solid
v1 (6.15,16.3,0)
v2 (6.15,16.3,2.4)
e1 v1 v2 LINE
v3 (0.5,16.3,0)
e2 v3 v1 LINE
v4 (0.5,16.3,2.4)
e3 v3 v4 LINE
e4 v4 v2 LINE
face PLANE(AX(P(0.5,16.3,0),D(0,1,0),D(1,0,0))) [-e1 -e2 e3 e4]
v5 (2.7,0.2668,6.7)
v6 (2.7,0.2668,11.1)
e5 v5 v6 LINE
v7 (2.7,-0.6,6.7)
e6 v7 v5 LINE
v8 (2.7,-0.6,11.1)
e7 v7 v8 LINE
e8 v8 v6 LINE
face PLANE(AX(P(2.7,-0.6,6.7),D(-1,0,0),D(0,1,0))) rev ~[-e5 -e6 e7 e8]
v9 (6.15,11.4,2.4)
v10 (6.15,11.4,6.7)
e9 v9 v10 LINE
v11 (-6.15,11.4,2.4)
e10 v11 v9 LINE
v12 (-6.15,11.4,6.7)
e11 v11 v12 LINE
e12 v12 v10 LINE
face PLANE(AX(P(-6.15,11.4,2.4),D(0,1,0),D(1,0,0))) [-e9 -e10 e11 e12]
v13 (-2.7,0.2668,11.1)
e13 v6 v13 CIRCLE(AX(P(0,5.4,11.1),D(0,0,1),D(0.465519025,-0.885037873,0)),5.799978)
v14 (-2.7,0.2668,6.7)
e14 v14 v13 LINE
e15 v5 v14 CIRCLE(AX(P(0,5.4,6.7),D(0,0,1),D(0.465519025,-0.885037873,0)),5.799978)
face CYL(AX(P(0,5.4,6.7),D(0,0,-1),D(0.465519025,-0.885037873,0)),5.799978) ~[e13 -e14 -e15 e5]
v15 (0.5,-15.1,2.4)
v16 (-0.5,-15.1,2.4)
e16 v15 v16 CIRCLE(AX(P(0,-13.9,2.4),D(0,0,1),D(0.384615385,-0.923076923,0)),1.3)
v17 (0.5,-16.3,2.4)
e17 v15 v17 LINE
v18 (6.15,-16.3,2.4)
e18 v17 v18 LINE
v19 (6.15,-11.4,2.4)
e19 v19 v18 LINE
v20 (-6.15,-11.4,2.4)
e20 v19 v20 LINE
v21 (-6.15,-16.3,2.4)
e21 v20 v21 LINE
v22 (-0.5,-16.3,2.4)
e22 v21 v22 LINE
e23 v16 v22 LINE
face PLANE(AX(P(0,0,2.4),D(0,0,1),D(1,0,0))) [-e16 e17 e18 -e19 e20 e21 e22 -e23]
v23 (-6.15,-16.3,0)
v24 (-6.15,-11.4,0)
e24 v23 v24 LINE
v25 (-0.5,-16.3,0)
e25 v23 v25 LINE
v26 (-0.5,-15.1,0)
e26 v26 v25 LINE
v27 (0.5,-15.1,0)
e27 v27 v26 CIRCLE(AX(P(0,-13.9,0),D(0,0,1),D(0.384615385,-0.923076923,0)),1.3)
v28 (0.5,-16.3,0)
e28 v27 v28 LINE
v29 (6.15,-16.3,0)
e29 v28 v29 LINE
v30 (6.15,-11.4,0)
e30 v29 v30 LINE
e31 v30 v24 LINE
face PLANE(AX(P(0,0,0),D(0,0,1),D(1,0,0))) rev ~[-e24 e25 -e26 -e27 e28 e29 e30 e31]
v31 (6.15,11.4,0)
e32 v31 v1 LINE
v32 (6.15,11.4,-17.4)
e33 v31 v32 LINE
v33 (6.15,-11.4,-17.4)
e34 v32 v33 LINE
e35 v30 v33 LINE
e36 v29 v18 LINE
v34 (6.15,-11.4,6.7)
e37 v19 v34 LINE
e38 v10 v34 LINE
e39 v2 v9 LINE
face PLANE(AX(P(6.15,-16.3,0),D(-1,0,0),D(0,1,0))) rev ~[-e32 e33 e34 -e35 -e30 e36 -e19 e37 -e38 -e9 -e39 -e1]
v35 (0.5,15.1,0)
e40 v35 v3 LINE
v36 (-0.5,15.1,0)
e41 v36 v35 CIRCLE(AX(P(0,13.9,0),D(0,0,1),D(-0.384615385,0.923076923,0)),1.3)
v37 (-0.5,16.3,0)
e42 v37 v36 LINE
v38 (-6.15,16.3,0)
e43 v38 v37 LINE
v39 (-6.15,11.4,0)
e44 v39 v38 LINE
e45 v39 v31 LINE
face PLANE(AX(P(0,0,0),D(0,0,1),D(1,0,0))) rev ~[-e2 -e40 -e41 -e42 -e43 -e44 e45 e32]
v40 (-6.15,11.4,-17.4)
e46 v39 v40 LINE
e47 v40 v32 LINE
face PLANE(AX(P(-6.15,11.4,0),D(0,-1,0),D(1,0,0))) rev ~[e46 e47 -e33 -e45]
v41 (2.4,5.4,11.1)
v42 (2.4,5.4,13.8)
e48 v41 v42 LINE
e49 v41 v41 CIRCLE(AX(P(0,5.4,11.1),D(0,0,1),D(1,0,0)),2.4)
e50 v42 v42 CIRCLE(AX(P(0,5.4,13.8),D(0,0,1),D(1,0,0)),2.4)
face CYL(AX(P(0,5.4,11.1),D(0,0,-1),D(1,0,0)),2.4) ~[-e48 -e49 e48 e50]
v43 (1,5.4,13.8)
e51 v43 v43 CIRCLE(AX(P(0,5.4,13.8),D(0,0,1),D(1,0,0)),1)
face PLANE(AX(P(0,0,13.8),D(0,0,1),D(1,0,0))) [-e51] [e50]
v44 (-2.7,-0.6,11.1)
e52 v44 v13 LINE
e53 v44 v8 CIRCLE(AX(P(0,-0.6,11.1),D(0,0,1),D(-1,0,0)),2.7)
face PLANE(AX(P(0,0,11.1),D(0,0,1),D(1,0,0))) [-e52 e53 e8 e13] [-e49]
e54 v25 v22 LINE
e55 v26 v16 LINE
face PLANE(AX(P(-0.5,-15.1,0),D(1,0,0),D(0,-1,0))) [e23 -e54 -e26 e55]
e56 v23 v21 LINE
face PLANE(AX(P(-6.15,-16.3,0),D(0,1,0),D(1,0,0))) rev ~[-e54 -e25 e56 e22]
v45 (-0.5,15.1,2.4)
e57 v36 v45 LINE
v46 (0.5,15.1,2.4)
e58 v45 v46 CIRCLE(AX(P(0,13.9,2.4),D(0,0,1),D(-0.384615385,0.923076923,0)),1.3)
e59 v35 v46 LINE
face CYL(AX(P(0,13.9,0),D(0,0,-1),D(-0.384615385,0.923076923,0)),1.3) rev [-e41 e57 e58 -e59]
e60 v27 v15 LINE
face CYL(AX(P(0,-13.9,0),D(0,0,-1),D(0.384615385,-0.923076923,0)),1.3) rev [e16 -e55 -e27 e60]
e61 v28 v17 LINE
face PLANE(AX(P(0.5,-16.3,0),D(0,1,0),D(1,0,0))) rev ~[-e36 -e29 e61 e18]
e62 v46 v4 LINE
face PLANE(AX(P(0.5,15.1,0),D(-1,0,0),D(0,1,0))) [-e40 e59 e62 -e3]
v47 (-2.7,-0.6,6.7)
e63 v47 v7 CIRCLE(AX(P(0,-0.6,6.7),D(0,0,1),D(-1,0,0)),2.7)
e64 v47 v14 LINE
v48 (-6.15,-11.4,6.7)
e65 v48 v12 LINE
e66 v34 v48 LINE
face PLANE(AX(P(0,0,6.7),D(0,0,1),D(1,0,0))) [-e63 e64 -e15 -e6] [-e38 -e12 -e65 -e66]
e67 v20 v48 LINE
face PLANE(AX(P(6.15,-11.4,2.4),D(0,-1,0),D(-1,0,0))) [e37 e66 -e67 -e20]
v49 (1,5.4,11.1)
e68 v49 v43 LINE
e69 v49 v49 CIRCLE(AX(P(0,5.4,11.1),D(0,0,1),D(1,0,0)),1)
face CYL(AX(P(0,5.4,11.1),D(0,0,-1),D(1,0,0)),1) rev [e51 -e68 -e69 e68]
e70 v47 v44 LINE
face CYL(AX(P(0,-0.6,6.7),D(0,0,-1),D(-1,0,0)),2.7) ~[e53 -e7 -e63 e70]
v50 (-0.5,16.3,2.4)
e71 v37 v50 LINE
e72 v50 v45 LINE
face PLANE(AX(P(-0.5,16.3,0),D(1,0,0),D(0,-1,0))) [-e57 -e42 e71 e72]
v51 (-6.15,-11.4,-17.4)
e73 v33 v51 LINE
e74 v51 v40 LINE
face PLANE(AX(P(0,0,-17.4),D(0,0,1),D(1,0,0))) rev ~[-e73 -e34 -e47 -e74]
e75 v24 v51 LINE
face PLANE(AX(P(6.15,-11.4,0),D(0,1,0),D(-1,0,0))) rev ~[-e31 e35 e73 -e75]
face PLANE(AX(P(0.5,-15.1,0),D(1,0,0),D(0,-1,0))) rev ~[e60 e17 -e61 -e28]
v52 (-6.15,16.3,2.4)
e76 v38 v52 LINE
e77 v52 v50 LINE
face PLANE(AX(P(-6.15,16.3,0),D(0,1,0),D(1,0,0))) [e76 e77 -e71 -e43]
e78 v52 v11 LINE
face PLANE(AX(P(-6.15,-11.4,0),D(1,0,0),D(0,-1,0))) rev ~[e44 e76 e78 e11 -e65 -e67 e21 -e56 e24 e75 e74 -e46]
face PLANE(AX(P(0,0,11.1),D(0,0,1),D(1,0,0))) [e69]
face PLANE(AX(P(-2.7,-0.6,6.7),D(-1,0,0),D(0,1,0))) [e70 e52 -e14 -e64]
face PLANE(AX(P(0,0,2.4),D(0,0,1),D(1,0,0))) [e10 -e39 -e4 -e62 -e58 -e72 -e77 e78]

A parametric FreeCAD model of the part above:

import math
import FreeCAD as App
import Part
import Sketcher

V = App.Vector
Q = App.Units.Quantity


def add_polygon(sketch, points):
    """Adds a closed chain of lines whose ends are joined by coincident constraints."""
    first, n = sketch.GeometryCount, len(points)
    for a, b in zip(points, points[1:] + points[:1]):
        sketch.addGeometry(Part.LineSegment(App.Vector(*a, 0), App.Vector(*b, 0)), False)
    for i in range(n):
        sketch.addConstraint(Sketcher.Constraint("Coincident", first + i, 2, first + (i + 1) % n, 1))

doc = App.newDocument("Part")
body = doc.addObject("PartDesign::Body", "Body")

sketch1 = body.newObject("Sketcher::SketchObject", "Sketch")
sketch1.AttachmentSupport = (doc.getObject("XY_Plane"), [""])
sketch1.MapMode = "FlatFace"
add_polygon(sketch1, [(-6, -11), (6, -11), (6, 11), (-6, 11)])
sketch1.addConstraint([
    Sketcher.Constraint("Horizontal", 0),
    Sketcher.Constraint("Vertical", 1),
    Sketcher.Constraint("Horizontal", 2),
    Sketcher.Constraint("Vertical", 3),
    Sketcher.Constraint("Symmetric", 0, 2, 2, 2, -1, 1),
    Sketcher.Constraint("DistanceX", 0, 1, 0, 2, Q("12.3 mm")),
    Sketcher.Constraint("DistanceY", 1, 1, 1, 2, Q("22.8 mm")),
])
pad1 = body.newObject("PartDesign::Pad", "Pad")
pad1.Profile = sketch1
pad1.Length = 17.4
pad1.Reversed = True

sketch2 = body.newObject("Sketcher::SketchObject", "Sketch001")
sketch2.AttachmentSupport = (doc.getObject("XY_Plane"), [""])
sketch2.MapMode = "FlatFace"
sketch2.addGeometry([
    Part.LineSegment(V(6.2, -16.3, 0), V(6.2, 16.3, 0)),
    Part.LineSegment(V(6.2, 16.3, 0), V(0.5, 16.3, 0)),
    Part.LineSegment(V(0.5, 16.3, 0), V(0.5, 15.1, 0)),
    Part.ArcOfCircle(Part.Circle(V(0, 13.9, 0), V(0, 0, 1), 1.3), math.radians(113), math.radians(427)),
    Part.LineSegment(V(-0.5, 15.1, 0), V(-0.5, 16.3, 0)),
    Part.LineSegment(V(-0.5, 16.3, 0), V(-6.2, 16.3, 0)),
    Part.LineSegment(V(-6.2, 16.3, 0), V(-6.2, -16.3, 0)),
    Part.LineSegment(V(-6.2, -16.3, 0), V(-0.5, -16.3, 0)),
    Part.LineSegment(V(-0.5, -16.3, 0), V(-0.5, -15.1, 0)),
    Part.ArcOfCircle(Part.Circle(V(0, -13.9, 0), V(0, 0, 1), 1.3), math.radians(-67), math.radians(247)),
    Part.LineSegment(V(0.5, -15.1, 0), V(0.5, -16.3, 0)),
    Part.LineSegment(V(0.5, -16.3, 0), V(6.2, -16.3, 0)),
], False)
sketch2.addConstraint([
    Sketcher.Constraint("Coincident", 0, 2, 1, 1),
    Sketcher.Constraint("Coincident", 1, 2, 2, 1),
    Sketcher.Constraint("Coincident", 2, 2, 3, 2),
    Sketcher.Constraint("Coincident", 3, 1, 4, 1),
    Sketcher.Constraint("Coincident", 4, 2, 5, 1),
    Sketcher.Constraint("Coincident", 5, 2, 6, 1),
    Sketcher.Constraint("Coincident", 6, 2, 7, 1),
    Sketcher.Constraint("Coincident", 7, 2, 8, 1),
    Sketcher.Constraint("Coincident", 8, 2, 9, 2),
    Sketcher.Constraint("Coincident", 9, 1, 10, 1),
    Sketcher.Constraint("Coincident", 10, 2, 11, 1),
    Sketcher.Constraint("Coincident", 11, 2, 0, 1),
    Sketcher.Constraint("Vertical", 0),
    Sketcher.Constraint("Horizontal", 1),
    Sketcher.Constraint("Vertical", 2),
    Sketcher.Constraint("Vertical", 4),
    Sketcher.Constraint("Horizontal", 5),
    Sketcher.Constraint("Vertical", 6),
    Sketcher.Constraint("Horizontal", 7),
    Sketcher.Constraint("Vertical", 8),
    Sketcher.Constraint("Vertical", 10),
    Sketcher.Constraint("Horizontal", 11),
    Sketcher.Constraint("Equal", 3, 9),
    Sketcher.Constraint("Symmetric", 3, 3, 9, 3, -1, 1),
    Sketcher.Constraint("Symmetric", 0, 2, 6, 2, -1, 1),
    Sketcher.Constraint("Symmetric", 4, 2, 10, 2, -1, 1),
    Sketcher.Constraint("Symmetric", 2, 2, 3, 1, -2),
    Sketcher.Constraint("Symmetric", 7, 2, 10, 2, -2),
    Sketcher.Constraint("Radius", 3, Q("1.3 mm")),
    Sketcher.Constraint("DistanceX", 3, 1, 2, 2, Q("1 mm")),
    Sketcher.Constraint("DistanceY", 0, 1, 0, 2, Q("32.6 mm")),
    Sketcher.Constraint("DistanceY", 2, 2, 2, 1, Q("1.2 mm")),
    Sketcher.Constraint("DistanceX", 1, 2, 1, 1, Q("5.65 mm")),
])
pad2 = body.newObject("PartDesign::Pad", "Pad001")
pad2.Profile = sketch2
pad2.Length = 2.4

sketch3 = body.newObject("Sketcher::SketchObject", "Sketch002")
sketch3.AttachmentSupport = (doc.getObject("XY_Plane"), [""])
sketch3.MapMode = "FlatFace"
sketch3.AttachmentOffset = App.Placement(V(0, 0, 2.4), App.Rotation())
add_polygon(sketch3, [(-6, -11), (6, -11), (6, 11), (-6, 11)])
sketch3.addConstraint([
    Sketcher.Constraint("Horizontal", 0),
    Sketcher.Constraint("Vertical", 1),
    Sketcher.Constraint("Horizontal", 2),
    Sketcher.Constraint("Vertical", 3),
    Sketcher.Constraint("Symmetric", 0, 2, 2, 2, -1, 1),
    Sketcher.Constraint("DistanceX", 0, 1, 0, 2, Q("12.3 mm")),
    Sketcher.Constraint("DistanceY", 1, 1, 1, 2, Q("22.8 mm")),
])
pad3 = body.newObject("PartDesign::Pad", "Pad002")
pad3.Profile = sketch3
pad3.Length = 4.3

sketch4 = body.newObject("Sketcher::SketchObject", "Sketch003")
sketch4.AttachmentSupport = (doc.getObject("XY_Plane"), [""])
sketch4.MapMode = "FlatFace"
sketch4.AttachmentOffset = App.Placement(V(0, 0, 6.7), App.Rotation())
sketch4.addGeometry([
    Part.LineSegment(V(-2.7, 0.3, 0), V(-2.7, -0.6, 0)),
    Part.ArcOfCircle(Part.Circle(V(0, -0.6, 0), V(0, 0, 1), 2.7), math.radians(180), math.radians(360)),
    Part.LineSegment(V(2.7, -0.6, 0), V(2.7, 0.3, 0)),
    Part.ArcOfCircle(Part.Circle(V(0, 5.4, 0), V(0, 0, 1), 5.8), math.radians(-62), math.radians(242)),
], False)
sketch4.addConstraint([
    Sketcher.Constraint("Tangent", 0, 2, 1, 1),
    Sketcher.Constraint("Tangent", 1, 2, 2, 1),
    Sketcher.Constraint("Coincident", 2, 2, 3, 1),
    Sketcher.Constraint("Coincident", 3, 2, 0, 1),
    Sketcher.Constraint("Vertical", 0),
    Sketcher.Constraint("Vertical", 2),
    Sketcher.Constraint("Symmetric", 2, 2, 3, 2, -2),
    Sketcher.Constraint("Radius", 1, Q("2.7 mm")),
    Sketcher.Constraint("Radius", 3, Q("5.8 mm")),
    Sketcher.Constraint("DistanceY", 1, 3, 3, 3, Q("6 mm")),
    Sketcher.Constraint("DistanceY", -1, 1, 3, 3, Q("5.4 mm")),
])
pad4 = body.newObject("PartDesign::Pad", "Pad003")
pad4.Profile = sketch4
pad4.Length = 4.4

sketch5 = body.newObject("Sketcher::SketchObject", "Sketch004")
sketch5.AttachmentSupport = (doc.getObject("XY_Plane"), [""])
sketch5.MapMode = "FlatFace"
sketch5.AttachmentOffset = App.Placement(V(0, 0, 11.1), App.Rotation())
sketch5.addGeometry([
    Part.Circle(V(0, 5.4, 0), V(0, 0, 1), 2.4),
    Part.Circle(V(0, 5.4, 0), V(0, 0, 1), 1),
], False)
sketch5.addConstraint([
    Sketcher.Constraint("Coincident", 1, 3, 0, 3),
    Sketcher.Constraint("PointOnObject", 0, 3, -2),
    Sketcher.Constraint("Diameter", 1, Q("2 mm")),
    Sketcher.Constraint("Diameter", 0, Q("4.8 mm")),
    Sketcher.Constraint("DistanceY", -1, 1, 0, 3, Q("5.4 mm")),
])
pad5 = body.newObject("PartDesign::Pad", "Pad004")
pad5.Profile = sketch5
pad5.Length = 2.7

doc.recompute()
